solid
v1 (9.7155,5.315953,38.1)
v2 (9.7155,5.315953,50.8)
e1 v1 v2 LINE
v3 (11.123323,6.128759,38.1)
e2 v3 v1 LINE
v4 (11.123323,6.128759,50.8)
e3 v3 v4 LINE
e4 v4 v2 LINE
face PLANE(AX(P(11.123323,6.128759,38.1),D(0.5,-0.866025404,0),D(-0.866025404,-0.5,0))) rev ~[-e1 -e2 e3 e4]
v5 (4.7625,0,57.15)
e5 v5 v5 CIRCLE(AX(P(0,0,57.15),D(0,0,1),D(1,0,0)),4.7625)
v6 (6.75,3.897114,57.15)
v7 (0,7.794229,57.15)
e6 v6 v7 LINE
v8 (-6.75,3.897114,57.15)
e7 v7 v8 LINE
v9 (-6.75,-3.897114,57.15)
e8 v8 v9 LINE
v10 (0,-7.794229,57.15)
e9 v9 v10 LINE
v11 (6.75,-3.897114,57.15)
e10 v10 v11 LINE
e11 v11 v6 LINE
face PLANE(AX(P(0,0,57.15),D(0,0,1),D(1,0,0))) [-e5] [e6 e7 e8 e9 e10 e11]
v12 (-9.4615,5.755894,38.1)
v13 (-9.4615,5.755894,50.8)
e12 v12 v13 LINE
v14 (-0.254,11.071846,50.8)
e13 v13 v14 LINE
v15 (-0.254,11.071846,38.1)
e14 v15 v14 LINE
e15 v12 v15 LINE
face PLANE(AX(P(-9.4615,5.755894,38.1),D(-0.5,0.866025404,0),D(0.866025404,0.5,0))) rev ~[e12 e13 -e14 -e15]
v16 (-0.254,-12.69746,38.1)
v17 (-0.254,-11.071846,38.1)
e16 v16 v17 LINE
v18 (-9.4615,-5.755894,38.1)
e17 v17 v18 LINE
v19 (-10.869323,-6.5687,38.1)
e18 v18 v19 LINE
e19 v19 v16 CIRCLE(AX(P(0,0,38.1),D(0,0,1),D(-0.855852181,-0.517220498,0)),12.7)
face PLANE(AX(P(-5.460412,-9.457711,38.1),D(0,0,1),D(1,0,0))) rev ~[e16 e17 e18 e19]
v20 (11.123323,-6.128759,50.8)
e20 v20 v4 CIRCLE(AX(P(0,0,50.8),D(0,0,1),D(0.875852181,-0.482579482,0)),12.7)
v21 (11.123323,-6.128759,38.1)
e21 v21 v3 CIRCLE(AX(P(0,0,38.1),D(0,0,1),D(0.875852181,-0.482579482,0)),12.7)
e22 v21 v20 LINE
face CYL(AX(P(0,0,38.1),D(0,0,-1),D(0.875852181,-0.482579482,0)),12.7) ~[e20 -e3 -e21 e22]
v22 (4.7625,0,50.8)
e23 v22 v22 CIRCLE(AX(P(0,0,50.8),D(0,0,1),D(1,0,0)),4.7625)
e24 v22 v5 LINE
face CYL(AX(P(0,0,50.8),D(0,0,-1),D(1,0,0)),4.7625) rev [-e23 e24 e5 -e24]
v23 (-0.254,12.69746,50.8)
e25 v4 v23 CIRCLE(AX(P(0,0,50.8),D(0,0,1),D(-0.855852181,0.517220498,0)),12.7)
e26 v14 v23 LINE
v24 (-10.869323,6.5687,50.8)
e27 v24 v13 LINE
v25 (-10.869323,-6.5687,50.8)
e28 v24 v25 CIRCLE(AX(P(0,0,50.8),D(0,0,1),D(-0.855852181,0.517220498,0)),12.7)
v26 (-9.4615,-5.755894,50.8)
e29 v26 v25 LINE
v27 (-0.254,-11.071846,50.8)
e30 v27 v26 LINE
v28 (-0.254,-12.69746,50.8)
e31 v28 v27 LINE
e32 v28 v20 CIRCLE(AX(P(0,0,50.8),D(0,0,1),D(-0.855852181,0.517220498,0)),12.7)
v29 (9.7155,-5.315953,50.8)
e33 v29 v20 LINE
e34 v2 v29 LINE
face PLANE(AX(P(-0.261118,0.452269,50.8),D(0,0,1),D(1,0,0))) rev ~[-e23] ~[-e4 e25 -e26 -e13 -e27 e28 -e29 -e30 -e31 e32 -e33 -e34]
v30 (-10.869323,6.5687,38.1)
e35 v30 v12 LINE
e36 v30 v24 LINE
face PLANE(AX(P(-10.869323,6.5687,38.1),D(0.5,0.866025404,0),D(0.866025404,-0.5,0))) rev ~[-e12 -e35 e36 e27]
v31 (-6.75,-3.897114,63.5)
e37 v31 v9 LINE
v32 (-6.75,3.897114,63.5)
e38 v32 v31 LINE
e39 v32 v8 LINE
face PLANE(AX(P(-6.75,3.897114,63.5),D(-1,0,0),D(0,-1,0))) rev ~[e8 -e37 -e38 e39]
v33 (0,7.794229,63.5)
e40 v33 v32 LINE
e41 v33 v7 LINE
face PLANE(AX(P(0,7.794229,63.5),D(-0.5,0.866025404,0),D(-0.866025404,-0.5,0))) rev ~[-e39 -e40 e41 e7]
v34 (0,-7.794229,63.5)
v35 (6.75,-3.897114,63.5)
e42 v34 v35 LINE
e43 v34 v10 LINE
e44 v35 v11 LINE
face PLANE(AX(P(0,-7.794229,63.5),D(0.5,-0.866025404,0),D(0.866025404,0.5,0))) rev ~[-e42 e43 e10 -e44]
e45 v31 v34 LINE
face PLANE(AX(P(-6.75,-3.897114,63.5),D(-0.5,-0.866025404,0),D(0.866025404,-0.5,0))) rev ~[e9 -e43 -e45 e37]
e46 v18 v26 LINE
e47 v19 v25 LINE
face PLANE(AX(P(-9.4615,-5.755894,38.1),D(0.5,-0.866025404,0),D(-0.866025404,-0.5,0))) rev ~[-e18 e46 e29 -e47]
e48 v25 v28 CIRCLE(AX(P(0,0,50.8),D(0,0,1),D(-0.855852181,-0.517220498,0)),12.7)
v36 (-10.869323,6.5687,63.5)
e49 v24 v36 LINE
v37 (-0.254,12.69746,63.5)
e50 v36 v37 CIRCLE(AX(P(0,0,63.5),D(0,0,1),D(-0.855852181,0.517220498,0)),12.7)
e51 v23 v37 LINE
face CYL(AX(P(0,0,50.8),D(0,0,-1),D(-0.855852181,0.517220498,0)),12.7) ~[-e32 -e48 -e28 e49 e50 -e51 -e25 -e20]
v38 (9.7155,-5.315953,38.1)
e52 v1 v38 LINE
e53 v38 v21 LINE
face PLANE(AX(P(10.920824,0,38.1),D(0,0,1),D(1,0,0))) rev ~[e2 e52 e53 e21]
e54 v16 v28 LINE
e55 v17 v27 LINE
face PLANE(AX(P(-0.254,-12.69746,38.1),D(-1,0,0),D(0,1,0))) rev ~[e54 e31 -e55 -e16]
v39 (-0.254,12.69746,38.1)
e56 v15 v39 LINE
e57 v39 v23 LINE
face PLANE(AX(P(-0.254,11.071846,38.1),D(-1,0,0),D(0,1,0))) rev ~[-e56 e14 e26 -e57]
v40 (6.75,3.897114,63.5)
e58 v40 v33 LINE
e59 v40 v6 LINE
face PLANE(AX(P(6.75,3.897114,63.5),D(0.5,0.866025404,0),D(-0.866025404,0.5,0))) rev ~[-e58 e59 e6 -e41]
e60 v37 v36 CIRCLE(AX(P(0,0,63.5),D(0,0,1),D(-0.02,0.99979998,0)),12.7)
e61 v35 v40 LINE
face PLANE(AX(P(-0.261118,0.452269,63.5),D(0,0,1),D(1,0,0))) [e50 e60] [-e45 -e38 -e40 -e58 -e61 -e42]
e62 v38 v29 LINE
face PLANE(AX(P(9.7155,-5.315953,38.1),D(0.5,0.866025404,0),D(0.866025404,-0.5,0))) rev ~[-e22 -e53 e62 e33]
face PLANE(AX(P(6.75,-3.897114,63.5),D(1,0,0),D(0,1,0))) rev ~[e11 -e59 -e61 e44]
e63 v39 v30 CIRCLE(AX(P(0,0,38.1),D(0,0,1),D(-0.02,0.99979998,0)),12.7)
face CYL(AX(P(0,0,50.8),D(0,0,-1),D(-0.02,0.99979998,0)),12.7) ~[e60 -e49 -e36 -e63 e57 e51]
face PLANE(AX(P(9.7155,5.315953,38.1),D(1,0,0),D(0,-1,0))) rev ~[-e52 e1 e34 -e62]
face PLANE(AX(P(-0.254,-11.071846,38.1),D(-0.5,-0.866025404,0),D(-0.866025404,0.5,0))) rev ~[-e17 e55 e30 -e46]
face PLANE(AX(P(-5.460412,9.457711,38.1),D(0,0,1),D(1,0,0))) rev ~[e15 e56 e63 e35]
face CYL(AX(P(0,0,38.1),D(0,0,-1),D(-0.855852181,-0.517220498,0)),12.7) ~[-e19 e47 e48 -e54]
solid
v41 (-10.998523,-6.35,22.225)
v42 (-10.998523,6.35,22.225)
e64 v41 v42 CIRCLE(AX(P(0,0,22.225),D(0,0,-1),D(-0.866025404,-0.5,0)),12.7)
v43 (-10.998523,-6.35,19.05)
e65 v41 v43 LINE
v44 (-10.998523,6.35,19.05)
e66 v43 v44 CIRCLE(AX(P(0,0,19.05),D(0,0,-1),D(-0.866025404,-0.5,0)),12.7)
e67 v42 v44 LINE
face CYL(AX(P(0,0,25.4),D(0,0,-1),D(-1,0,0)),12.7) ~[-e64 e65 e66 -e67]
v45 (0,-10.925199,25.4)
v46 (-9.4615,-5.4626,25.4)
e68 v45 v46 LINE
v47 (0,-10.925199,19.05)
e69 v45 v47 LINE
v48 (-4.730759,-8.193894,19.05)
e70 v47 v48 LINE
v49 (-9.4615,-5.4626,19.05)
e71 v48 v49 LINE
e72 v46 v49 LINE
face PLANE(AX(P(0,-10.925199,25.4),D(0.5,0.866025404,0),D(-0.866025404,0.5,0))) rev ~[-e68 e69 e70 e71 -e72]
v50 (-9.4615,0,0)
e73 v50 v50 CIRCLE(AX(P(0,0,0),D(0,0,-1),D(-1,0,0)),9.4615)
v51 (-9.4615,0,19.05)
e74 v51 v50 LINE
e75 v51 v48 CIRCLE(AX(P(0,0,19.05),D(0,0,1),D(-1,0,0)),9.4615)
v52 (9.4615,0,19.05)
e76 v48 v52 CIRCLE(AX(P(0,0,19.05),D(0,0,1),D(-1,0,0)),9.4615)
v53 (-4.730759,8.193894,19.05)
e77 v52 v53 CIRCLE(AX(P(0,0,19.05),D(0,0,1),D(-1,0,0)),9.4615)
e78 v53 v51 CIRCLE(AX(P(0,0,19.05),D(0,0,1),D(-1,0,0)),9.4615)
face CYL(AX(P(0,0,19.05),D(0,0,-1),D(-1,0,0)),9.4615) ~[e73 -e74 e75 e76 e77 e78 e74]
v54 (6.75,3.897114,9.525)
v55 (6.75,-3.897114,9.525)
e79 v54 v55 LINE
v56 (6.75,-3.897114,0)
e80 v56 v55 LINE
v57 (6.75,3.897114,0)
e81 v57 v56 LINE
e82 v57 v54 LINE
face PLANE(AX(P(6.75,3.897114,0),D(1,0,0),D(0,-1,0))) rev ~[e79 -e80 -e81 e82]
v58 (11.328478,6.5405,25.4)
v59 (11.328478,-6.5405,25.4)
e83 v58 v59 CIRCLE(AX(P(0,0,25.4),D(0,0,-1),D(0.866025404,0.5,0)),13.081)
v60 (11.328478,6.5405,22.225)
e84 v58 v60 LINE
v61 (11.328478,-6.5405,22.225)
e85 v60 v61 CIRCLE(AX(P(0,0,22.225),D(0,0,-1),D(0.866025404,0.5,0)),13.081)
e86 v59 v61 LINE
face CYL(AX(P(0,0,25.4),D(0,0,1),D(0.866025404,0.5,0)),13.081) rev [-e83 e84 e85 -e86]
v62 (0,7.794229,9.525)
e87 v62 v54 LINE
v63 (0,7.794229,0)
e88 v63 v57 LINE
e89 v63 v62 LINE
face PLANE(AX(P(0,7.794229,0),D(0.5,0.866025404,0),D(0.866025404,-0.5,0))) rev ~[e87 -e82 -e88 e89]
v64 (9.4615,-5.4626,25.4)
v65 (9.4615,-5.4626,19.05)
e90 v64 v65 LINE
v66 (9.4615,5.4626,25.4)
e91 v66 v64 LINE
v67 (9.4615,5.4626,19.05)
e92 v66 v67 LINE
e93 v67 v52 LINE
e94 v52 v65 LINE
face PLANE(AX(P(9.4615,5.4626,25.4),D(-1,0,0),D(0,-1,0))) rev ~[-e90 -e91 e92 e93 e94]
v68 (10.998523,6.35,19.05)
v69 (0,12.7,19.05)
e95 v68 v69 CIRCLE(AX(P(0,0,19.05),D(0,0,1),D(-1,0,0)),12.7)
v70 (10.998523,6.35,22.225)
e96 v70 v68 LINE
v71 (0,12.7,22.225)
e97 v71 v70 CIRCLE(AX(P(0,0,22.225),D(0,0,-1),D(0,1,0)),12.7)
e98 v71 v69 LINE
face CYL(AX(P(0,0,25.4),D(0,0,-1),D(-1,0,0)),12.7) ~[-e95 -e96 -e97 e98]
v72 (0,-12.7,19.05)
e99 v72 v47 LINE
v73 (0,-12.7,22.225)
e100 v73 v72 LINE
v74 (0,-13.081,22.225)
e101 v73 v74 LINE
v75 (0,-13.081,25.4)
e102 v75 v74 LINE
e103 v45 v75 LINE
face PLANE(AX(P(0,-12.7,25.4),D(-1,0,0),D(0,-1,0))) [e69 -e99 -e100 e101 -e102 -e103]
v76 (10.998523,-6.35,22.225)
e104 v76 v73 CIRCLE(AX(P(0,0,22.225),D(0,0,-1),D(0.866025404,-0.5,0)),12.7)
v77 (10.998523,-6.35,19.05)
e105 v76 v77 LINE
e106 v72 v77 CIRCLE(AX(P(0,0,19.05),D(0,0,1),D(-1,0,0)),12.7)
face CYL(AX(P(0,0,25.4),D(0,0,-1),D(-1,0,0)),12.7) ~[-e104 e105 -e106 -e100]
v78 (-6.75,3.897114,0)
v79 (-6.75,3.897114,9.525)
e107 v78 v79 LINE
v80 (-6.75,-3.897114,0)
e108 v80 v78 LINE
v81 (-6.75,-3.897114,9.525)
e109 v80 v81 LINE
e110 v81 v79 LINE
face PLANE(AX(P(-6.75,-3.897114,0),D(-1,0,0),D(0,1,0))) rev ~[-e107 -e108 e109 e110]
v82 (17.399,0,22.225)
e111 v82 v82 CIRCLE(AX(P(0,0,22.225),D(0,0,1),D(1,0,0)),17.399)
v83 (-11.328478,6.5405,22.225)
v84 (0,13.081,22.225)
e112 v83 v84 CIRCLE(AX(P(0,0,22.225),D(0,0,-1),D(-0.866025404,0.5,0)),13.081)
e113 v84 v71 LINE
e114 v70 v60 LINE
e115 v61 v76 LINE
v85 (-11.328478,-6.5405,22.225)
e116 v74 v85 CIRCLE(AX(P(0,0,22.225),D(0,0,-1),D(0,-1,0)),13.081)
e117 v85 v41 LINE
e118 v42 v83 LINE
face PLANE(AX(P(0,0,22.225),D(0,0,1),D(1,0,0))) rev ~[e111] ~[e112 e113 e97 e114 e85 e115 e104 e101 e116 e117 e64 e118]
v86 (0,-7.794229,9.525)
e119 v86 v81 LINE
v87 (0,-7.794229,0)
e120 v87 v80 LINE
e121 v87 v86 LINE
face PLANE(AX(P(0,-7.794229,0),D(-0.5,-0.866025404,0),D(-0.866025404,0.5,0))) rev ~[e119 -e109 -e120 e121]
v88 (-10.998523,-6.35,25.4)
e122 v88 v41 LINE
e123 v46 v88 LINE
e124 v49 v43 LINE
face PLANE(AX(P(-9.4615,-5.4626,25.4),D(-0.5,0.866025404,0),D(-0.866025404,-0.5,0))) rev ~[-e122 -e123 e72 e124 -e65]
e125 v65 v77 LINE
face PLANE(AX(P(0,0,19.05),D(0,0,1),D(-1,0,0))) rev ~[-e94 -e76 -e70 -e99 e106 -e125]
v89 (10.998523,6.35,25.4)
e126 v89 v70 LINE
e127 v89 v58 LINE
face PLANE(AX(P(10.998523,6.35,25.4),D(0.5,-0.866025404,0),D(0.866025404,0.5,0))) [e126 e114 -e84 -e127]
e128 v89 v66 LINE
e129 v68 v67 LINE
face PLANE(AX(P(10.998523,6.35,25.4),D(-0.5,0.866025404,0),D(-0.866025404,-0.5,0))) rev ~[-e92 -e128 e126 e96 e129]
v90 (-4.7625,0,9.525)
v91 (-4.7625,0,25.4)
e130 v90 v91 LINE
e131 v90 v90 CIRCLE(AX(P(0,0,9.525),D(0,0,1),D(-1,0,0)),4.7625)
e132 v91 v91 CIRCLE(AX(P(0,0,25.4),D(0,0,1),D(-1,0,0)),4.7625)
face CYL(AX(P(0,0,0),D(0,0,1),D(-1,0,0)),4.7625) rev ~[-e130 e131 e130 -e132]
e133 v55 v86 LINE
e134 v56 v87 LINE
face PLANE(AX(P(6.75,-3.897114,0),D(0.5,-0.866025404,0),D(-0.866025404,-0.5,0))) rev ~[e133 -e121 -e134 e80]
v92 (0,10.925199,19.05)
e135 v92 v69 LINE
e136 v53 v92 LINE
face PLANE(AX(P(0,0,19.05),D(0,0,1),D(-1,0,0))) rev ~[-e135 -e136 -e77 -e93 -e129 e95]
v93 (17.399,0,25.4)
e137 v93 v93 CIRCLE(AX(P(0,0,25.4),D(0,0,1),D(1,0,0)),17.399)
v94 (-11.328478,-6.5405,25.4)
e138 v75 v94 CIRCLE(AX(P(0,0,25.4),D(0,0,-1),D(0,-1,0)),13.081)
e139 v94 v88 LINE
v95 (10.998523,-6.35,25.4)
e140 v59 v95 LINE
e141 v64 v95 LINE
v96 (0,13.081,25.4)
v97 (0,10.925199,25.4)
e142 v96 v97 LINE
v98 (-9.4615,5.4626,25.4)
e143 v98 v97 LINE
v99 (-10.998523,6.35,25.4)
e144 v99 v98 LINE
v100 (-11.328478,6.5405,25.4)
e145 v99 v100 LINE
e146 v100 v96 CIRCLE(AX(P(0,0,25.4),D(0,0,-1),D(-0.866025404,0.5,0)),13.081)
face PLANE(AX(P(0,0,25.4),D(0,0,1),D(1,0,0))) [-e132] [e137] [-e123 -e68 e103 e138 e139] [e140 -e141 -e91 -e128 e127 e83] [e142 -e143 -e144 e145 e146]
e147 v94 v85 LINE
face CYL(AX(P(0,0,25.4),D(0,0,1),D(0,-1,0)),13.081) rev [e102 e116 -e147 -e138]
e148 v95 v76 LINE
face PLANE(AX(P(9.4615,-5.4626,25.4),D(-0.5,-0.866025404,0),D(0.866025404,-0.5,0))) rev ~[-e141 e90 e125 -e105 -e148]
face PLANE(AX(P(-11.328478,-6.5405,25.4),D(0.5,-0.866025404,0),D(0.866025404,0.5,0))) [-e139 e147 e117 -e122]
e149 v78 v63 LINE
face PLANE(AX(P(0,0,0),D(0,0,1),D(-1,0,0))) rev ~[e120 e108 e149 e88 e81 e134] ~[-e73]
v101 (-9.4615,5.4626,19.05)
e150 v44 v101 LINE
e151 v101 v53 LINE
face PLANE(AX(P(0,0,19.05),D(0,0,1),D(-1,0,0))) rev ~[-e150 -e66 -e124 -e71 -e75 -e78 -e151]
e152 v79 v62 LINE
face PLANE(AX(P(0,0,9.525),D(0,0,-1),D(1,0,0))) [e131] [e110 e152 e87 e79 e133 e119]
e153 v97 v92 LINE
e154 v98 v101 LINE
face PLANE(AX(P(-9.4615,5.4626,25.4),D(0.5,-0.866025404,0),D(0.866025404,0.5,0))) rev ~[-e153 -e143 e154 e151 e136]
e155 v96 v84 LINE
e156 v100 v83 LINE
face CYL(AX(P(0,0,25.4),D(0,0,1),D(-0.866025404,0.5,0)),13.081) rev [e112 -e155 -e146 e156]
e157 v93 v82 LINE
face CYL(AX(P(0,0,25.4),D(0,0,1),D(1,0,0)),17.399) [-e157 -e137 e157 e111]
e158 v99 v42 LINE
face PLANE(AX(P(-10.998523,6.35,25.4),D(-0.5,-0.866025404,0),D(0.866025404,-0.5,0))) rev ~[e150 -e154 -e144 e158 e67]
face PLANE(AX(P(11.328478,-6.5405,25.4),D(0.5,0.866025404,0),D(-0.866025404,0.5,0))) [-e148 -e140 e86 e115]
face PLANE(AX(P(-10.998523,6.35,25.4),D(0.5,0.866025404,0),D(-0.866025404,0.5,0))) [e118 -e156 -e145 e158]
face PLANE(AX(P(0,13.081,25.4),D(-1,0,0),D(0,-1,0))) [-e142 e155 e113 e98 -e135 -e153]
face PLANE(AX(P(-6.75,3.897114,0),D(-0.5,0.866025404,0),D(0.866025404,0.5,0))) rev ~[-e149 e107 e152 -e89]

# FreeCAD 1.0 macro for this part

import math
import FreeCAD as App
import Part
import Sketcher
Q = App.Units.Quantity

doc = App.newDocument("Part")
body = doc.addObject("PartDesign::Body", "Body")

sketch1 = doc.addObject("Sketcher::SketchObject", "Sketch")
body.addObject(sketch1)
sketch1.AttachmentSupport = (doc.XZ_Plane, [""])
sketch1.MapMode = "FlatFace"
sketch1.addGeometry(Part.LineSegment(App.Vector(-9.4615, 0, 0), App.Vector(-4.7625, 0, 0)), False)
sketch1.addGeometry(Part.LineSegment(App.Vector(-4.7625, 0, 0), App.Vector(-4.7625, 25.4, 0)), False)
sketch1.addGeometry(Part.LineSegment(App.Vector(-4.7625, 25.4, 0), App.Vector(-12.7, 25.4, 0)), False)
sketch1.addGeometry(Part.LineSegment(App.Vector(-12.7, 25.4, 0), App.Vector(-12.7, 19.05, 0)), False)
sketch1.addGeometry(Part.LineSegment(App.Vector(-12.7, 19.05, 0), App.Vector(-9.4615, 19.05, 0)), False)
sketch1.addGeometry(Part.LineSegment(App.Vector(-9.4615, 19.05, 0), App.Vector(-9.4615, 0, 0)), False)
sketch1.addConstraint(Sketcher.Constraint("Coincident", 0, 2, 1, 1))
sketch1.addConstraint(Sketcher.Constraint("Coincident", 1, 2, 2, 1))
sketch1.addConstraint(Sketcher.Constraint("Coincident", 2, 2, 3, 1))
sketch1.addConstraint(Sketcher.Constraint("Coincident", 3, 2, 4, 1))
sketch1.addConstraint(Sketcher.Constraint("Coincident", 4, 2, 5, 1))
sketch1.addConstraint(Sketcher.Constraint("Coincident", 5, 2, 0, 1))
sketch1.addConstraint(Sketcher.Constraint("Horizontal", 0))
sketch1.addConstraint(Sketcher.Constraint("Vertical", 1))
sketch1.addConstraint(Sketcher.Constraint("Horizontal", 2))
sketch1.addConstraint(Sketcher.Constraint("Vertical", 3))
sketch1.addConstraint(Sketcher.Constraint("Horizontal", 4))
sketch1.addConstraint(Sketcher.Constraint("Vertical", 5))
sketch1.addConstraint(Sketcher.Constraint("PointOnObject", 0, 2, -1))
sketch1.addConstraint(Sketcher.Constraint("DistanceY", 1, 1, 1, 2, Q("1 in")))
sketch1.addConstraint(Sketcher.Constraint("DistanceY", 3, 2, 3, 1, Q("0.25 in")))
sketch1.addConstraint(Sketcher.Constraint("DistanceX", 2, 2, -1, 1, Q("0.5 in")))
sketch1.addConstraint(Sketcher.Constraint("DistanceX", 0, 1, 0, 2, Q("0.185 in")))
sketch1.addConstraint(Sketcher.Constraint("DistanceX", 2, 2, 2, 1, Q("0.3125 in")))
revolution = doc.addObject("PartDesign::Revolution", "Revolution")
body.addObject(revolution)
revolution.Profile = sketch1
revolution.ReferenceAxis = (sketch1, ["V_Axis"])
revolution.Angle = 360

sketch2 = doc.addObject("Sketcher::SketchObject", "Sketch001")
body.addObject(sketch2)
sketch2.AttachmentSupport = (doc.XY_Plane, [""])
sketch2.MapMode = "FlatFace"
sketch2.addGeometry(Part.LineSegment(App.Vector(6.75, 3.897114, 0), App.Vector(6.75, -3.897114, 0)), False)
sketch2.addGeometry(Part.LineSegment(App.Vector(6.75, -3.897114, 0), App.Vector(0, -7.794229, 0)), False)
sketch2.addGeometry(Part.LineSegment(App.Vector(0, -7.794229, 0), App.Vector(-6.75, -3.897114, 0)), False)
sketch2.addGeometry(Part.LineSegment(App.Vector(-6.75, -3.897114, 0), App.Vector(-6.75, 3.897114, 0)), False)
sketch2.addGeometry(Part.LineSegment(App.Vector(-6.75, 3.897114, 0), App.Vector(0, 7.794229, 0)), False)
sketch2.addGeometry(Part.LineSegment(App.Vector(0, 7.794229, 0), App.Vector(6.75, 3.897114, 0)), False)
sketch2.addGeometry(Part.Circle(App.Vector(0, 0, 0), App.Vector(0, 0, 1), 4.7625), False)
sketch2.addConstraint(Sketcher.Constraint("Coincident", 0, 2, 1, 1))
sketch2.addConstraint(Sketcher.Constraint("Coincident", 1, 2, 2, 1))
sketch2.addConstraint(Sketcher.Constraint("Coincident", 2, 2, 3, 1))
sketch2.addConstraint(Sketcher.Constraint("Coincident", 3, 2, 4, 1))
sketch2.addConstraint(Sketcher.Constraint("Coincident", 4, 2, 5, 1))
sketch2.addConstraint(Sketcher.Constraint("Coincident", 5, 2, 0, 1))
sketch2.addConstraint(Sketcher.Constraint("Vertical", 0))
sketch2.addConstraint(Sketcher.Constraint("Vertical", 3))
sketch2.addConstraint(Sketcher.Constraint("Coincident", 6, 3, -1, 1))
sketch2.addConstraint(Sketcher.Constraint("Symmetric", 0, 2, 3, 2, -1, 1))
sketch2.addConstraint(Sketcher.Constraint("Symmetric", 1, 2, 4, 2, -1, 1))
sketch2.addConstraint(Sketcher.Constraint("PointOnObject", 1, 2, -2))
sketch2.addConstraint(Sketcher.Constraint("Parallel", 2, 5))
sketch2.addConstraint(Sketcher.Constraint("Horizontal", 0, 2, 2, 2))
sketch2.addConstraint(Sketcher.Constraint("Diameter", 6, Q("0.375 in")))
sketch2.addConstraint(Sketcher.Constraint("Angle", 1, Q("-150 deg")))
sketch2.addConstraint(Sketcher.Constraint("DistanceY", 0, 2, 0, 1, 7.794229))
sketch2.addConstraint(Sketcher.Constraint("DistanceX", -1, 1, 0, 2, 6.75))
pocket1 = doc.addObject("PartDesign::Pocket", "Pocket")
body.addObject(pocket1)
pocket1.Profile = sketch2
pocket1.Length = Q("0.375 in")
pocket1.Reversed = True

sketch3 = doc.addObject("Sketcher::SketchObject", "Sketch002")
body.addObject(sketch3)
sketch3.AttachmentSupport = (doc.XY_Plane, [""])
sketch3.MapMode = "FlatFace"
sketch3.AttachmentOffset = App.Placement(App.Vector(0, 0, 1 * 25.4), App.Rotation())
sketch3.addGeometry(Part.LineSegment(App.Vector(0, 10.925199, 0), App.Vector(0, 12.7, 0)), False)
sketch3.addGeometry(Part.ArcOfCircle(Part.Circle(App.Vector(0, 0, 0), App.Vector(0, 0, 1), 12.7), math.radians(90), math.radians(150)), False)
sketch3.addGeometry(Part.LineSegment(App.Vector(-10.998523, 6.35, 0), App.Vector(-9.4615, 5.4626, 0)), False)
sketch3.addGeometry(Part.LineSegment(App.Vector(-9.4615, 5.4626, 0), App.Vector(0, 10.925199, 0)), False)
sketch3.addGeometry(Part.LineSegment(App.Vector(-9.4615, -5.4626, 0), App.Vector(-10.998523, -6.35, 0)), False)
sketch3.addGeometry(Part.ArcOfCircle(Part.Circle(App.Vector(0, 0, 0), App.Vector(0, 0, 1), 12.7), math.radians(-150), math.radians(-90)), False)
sketch3.addGeometry(Part.LineSegment(App.Vector(0, -12.7, 0), App.Vector(0, -10.925199, 0)), False)
sketch3.addGeometry(Part.LineSegment(App.Vector(0, -10.925199, 0), App.Vector(-9.4615, -5.4626, 0)), False)
sketch3.addGeometry(Part.ArcOfCircle(Part.Circle(App.Vector(0, 0, 0), App.Vector(0, 0, 1), 12.7), math.radians(0), math.radians(30)), False)
sketch3.addGeometry(Part.LineSegment(App.Vector(10.998523, 6.35, 0), App.Vector(9.4615, 5.4626, 0)), False)
sketch3.addGeometry(Part.LineSegment(App.Vector(9.4615, 5.4626, 0), App.Vector(9.4615, -5.4626, 0)), False)
sketch3.addGeometry(Part.LineSegment(App.Vector(9.4615, -5.4626, 0), App.Vector(10.998523, -6.35, 0)), False)
sketch3.addGeometry(Part.ArcOfCircle(Part.Circle(App.Vector(0, 0, 0), App.Vector(0, 0, 1), 12.7), math.radians(-30), math.radians(0)), False)
sketch3.addConstraint(Sketcher.Constraint("Coincident", 0, 2, 1, 1))
sketch3.addConstraint(Sketcher.Constraint("Coincident", 1, 2, 2, 1))
sketch3.addConstraint(Sketcher.Constraint("Coincident", 2, 2, 3, 1))
sketch3.addConstraint(Sketcher.Constraint("Coincident", 3, 2, 0, 1))
sketch3.addConstraint(Sketcher.Constraint("Coincident", 4, 2, 5, 1))
sketch3.addConstraint(Sketcher.Constraint("Coincident", 5, 2, 6, 1))
sketch3.addConstraint(Sketcher.Constraint("Coincident", 6, 2, 7, 1))
sketch3.addConstraint(Sketcher.Constraint("Coincident", 7, 2, 4, 1))
sketch3.addConstraint(Sketcher.Constraint("Coincident", 8, 2, 9, 1))
sketch3.addConstraint(Sketcher.Constraint("Coincident", 9, 2, 10, 1))
sketch3.addConstraint(Sketcher.Constraint("Coincident", 10, 2, 11, 1))
sketch3.addConstraint(Sketcher.Constraint("Coincident", 11, 2, 12, 1))
sketch3.addConstraint(Sketcher.Constraint("Tangent", 12, 2, 8, 1))
sketch3.addConstraint(Sketcher.Constraint("Vertical", 0))
sketch3.addConstraint(Sketcher.Constraint("Vertical", 6))
sketch3.addConstraint(Sketcher.Constraint("Vertical", 10))
sketch3.addConstraint(Sketcher.Constraint("Coincident", 1, 3, -1, 1))
sketch3.addConstraint(Sketcher.Constraint("Coincident", 5, 3, -1, 1))
sketch3.addConstraint(Sketcher.Constraint("Coincident", 8, 3, -1, 1))
sketch3.addConstraint(Sketcher.Constraint("Equal", 1, 5))
sketch3.addConstraint(Sketcher.Constraint("Equal", 5, 8))
sketch3.addConstraint(Sketcher.Constraint("Equal", 8, 12))
sketch3.addConstraint(Sketcher.Constraint("Symmetric", 3, 2, 6, 2, -1, 1))
sketch3.addConstraint(Sketcher.Constraint("Symmetric", 7, 2, 9, 2, -1, 1))
sketch3.addConstraint(Sketcher.Constraint("Symmetric", 2, 2, 10, 2, -1, 1))
sketch3.addConstraint(Sketcher.Constraint("PointOnObject", 0, 2, -2))
sketch3.addConstraint(Sketcher.Constraint("PointOnObject", 12, 2, -1))
sketch3.addConstraint(Sketcher.Constraint("Parallel", 3, 4))
sketch3.addConstraint(Sketcher.Constraint("Parallel", 2, 7))
sketch3.addConstraint(Sketcher.Constraint("Parallel", 4, 9))
sketch3.addConstraint(Sketcher.Constraint("Parallel", 7, 11))
sketch3.addConstraint(Sketcher.Constraint("Horizontal", 1, 2, 8, 2))
sketch3.addConstraint(Sketcher.Constraint("Radius", 1, Q("0.5 in")))
sketch3.addConstraint(Sketcher.Constraint("Angle", 2, Q("-30 deg")))
sketch3.addConstraint(Sketcher.Constraint("DistanceY", -1, 1, 1, 2, Q("0.25 in")))
sketch3.addConstraint(Sketcher.Constraint("DistanceY", 0, 1, 0, 2, 1.774801))
pocket2 = doc.addObject("PartDesign::Pocket", "Pocket001")
body.addObject(pocket2)
pocket2.Profile = sketch3
pocket2.Length = Q("1 in")

sketch4 = doc.addObject("Sketcher::SketchObject", "Sketch003")
body.addObject(sketch4)
sketch4.AttachmentSupport = (doc.XY_Plane, [""])
sketch4.MapMode = "FlatFace"
sketch4.AttachmentOffset = App.Placement(App.Vector(0, 0, 1 * 25.4), App.Rotation())
sketch4.addGeometry(Part.Circle(App.Vector(0, 0, 0), App.Vector(0, 0, 1), 17.399), False)
sketch4.addGeometry(Part.LineSegment(App.Vector(10.998523, 6.35, 0), App.Vector(11.328478, 6.5405, 0)), False)
sketch4.addGeometry(Part.ArcOfCircle(Part.Circle(App.Vector(0, 0, 0), App.Vector(0, 0, 1), 13.081), math.radians(-30), math.radians(30)), False)
sketch4.addGeometry(Part.LineSegment(App.Vector(11.328478, -6.5405, 0), App.Vector(10.998523, -6.35, 0)), False)
sketch4.addGeometry(Part.ArcOfCircle(Part.Circle(App.Vector(0, 0, 0), App.Vector(0, 0, 1), 12.7), math.radians(-90), math.radians(-30)), False)
sketch4.addGeometry(Part.LineSegment(App.Vector(0, -12.7, 0), App.Vector(0, -13.081, 0)), False)
sketch4.addGeometry(Part.ArcOfCircle(Part.Circle(App.Vector(0, 0, 0), App.Vector(0, 0, 1), 13.081), math.radians(-150), math.radians(-90)), False)
sketch4.addGeometry(Part.LineSegment(App.Vector(-11.328478, -6.5405, 0), App.Vector(-10.998523, -6.35, 0)), False)
sketch4.addGeometry(Part.ArcOfCircle(Part.Circle(App.Vector(0, 0, 0), App.Vector(0, 0, 1), 12.7), math.radians(150), math.radians(210)), False)
sketch4.addGeometry(Part.LineSegment(App.Vector(-10.998523, 6.35, 0), App.Vector(-11.328478, 6.5405, 0)), False)
sketch4.addGeometry(Part.ArcOfCircle(Part.Circle(App.Vector(0, 0, 0), App.Vector(0, 0, 1), 13.081), math.radians(90), math.radians(150)), False)
sketch4.addGeometry(Part.LineSegment(App.Vector(0, 13.081, 0), App.Vector(0, 12.7, 0)), False)
sketch4.addGeometry(Part.ArcOfCircle(Part.Circle(App.Vector(0, 0, 0), App.Vector(0, 0, 1), 12.7), math.radians(30), math.radians(90)), False)
sketch4.addConstraint(Sketcher.Constraint("Coincident", 1, 2, 2, 2))
sketch4.addConstraint(Sketcher.Constraint("Coincident", 2, 1, 3, 1))
sketch4.addConstraint(Sketcher.Constraint("Coincident", 3, 2, 4, 2))
sketch4.addConstraint(Sketcher.Constraint("Coincident", 4, 1, 5, 1))
sketch4.addConstraint(Sketcher.Constraint("Coincident", 5, 2, 6, 2))
sketch4.addConstraint(Sketcher.Constraint("Coincident", 6, 1, 7, 1))
sketch4.addConstraint(Sketcher.Constraint("Coincident", 7, 2, 8, 2))
sketch4.addConstraint(Sketcher.Constraint("Coincident", 8, 1, 9, 1))
sketch4.addConstraint(Sketcher.Constraint("Coincident", 9, 2, 10, 2))
sketch4.addConstraint(Sketcher.Constraint("Coincident", 10, 1, 11, 1))
sketch4.addConstraint(Sketcher.Constraint("Coincident", 11, 2, 12, 2))
sketch4.addConstraint(Sketcher.Constraint("Coincident", 12, 1, 1, 1))
sketch4.addConstraint(Sketcher.Constraint("Vertical", 5))
sketch4.addConstraint(Sketcher.Constraint("Vertical", 11))
sketch4.addConstraint(Sketcher.Constraint("Coincident", 0, 3, -1, 1))
sketch4.addConstraint(Sketcher.Constraint("Coincident", 2, 3, -1, 1))
sketch4.addConstraint(Sketcher.Constraint("Coincident", 4, 3, -1, 1))
sketch4.addConstraint(Sketcher.Constraint("Coincident", 6, 3, -1, 1))
sketch4.addConstraint(Sketcher.Constraint("Coincident", 8, 3, -1, 1))
sketch4.addConstraint(Sketcher.Constraint("Coincident", 10, 3, -1, 1))
sketch4.addConstraint(Sketcher.Constraint("Coincident", 12, 3, -1, 1))
sketch4.addConstraint(Sketcher.Constraint("Equal", 2, 6))
sketch4.addConstraint(Sketcher.Constraint("Equal", 4, 8))
sketch4.addConstraint(Sketcher.Constraint("Equal", 6, 10))
sketch4.addConstraint(Sketcher.Constraint("Equal", 8, 12))
sketch4.addConstraint(Sketcher.Constraint("PointOnObject", 4, 1, -2))
sketch4.addConstraint(Sketcher.Constraint("PointOnObject", 10, 1, -2))
sketch4.addConstraint(Sketcher.Constraint("Parallel", 1, 7))
sketch4.addConstraint(Sketcher.Constraint("Parallel", 3, 9))
sketch4.addConstraint(Sketcher.Constraint("Horizontal", 2, 1, 6, 1))
sketch4.addConstraint(Sketcher.Constraint("Horizontal", 3, 2, 7, 2))
sketch4.addConstraint(Sketcher.Constraint("Horizontal", 1, 2, 9, 2))
sketch4.addConstraint(Sketcher.Constraint("Vertical", 1, 2, 2, 1))
sketch4.addConstraint(Sketcher.Constraint("Radius", 4, Q("0.5 in")))
sketch4.addConstraint(Sketcher.Constraint("Diameter", 0, Q("1.37 in")))
sketch4.addConstraint(Sketcher.Constraint("Angle", 1, Q("30 deg")))
sketch4.addConstraint(Sketcher.Constraint("Radius", 2, Q("0.515 in")))
sketch4.addConstraint(Sketcher.Constraint("DistanceY", 3, 2, -1, 1, Q("0.25 in")))
pad1 = doc.addObject("PartDesign::Pad", "Pad")
body.addObject(pad1)
pad1.Profile = sketch4
pad1.Length = Q("0.125 in")
pad1.Reversed = True
body2 = doc.addObject("PartDesign::Body", "Body001")

sketch5 = doc.addObject("Sketcher::SketchObject", "Sketch004")
body2.addObject(sketch5)
sketch5.AttachmentSupport = (doc.getObject("XY_Plane001"), [""])
sketch5.MapMode = "FlatFace"
sketch5.AttachmentOffset = App.Placement(App.Vector(0, 0, 1.5 * 25.4), App.Rotation())
sketch5.addGeometry(Part.LineSegment(App.Vector(-9.4615, 5.755894, 0), App.Vector(-0.254, 11.071846, 0)), False)
sketch5.addGeometry(Part.LineSegment(App.Vector(-0.254, 11.071846, 0), App.Vector(-0.254, 12.69746, 0)), False)
sketch5.addGeometry(Part.ArcOfCircle(Part.Circle(App.Vector(0, 0, 0), App.Vector(0, 0, 1), 12.7), math.radians(91.145992), math.radians(148.854008)), False)
sketch5.addGeometry(Part.LineSegment(App.Vector(-10.869323, 6.5687, 0), App.Vector(-9.4615, 5.755894, 0)), False)
sketch5.addConstraint(Sketcher.Constraint("Coincident", 0, 2, 1, 1))
sketch5.addConstraint(Sketcher.Constraint("Coincident", 1, 2, 2, 1))
sketch5.addConstraint(Sketcher.Constraint("Coincident", 2, 2, 3, 1))
sketch5.addConstraint(Sketcher.Constraint("Coincident", 3, 2, 0, 1))
sketch5.addConstraint(Sketcher.Constraint("Vertical", 1))
sketch5.addConstraint(Sketcher.Constraint("Coincident", 2, 3, -1, 1))
sketch5.addConstraint(Sketcher.Constraint("Radius", 2, Q("0.5 in")))
sketch5.addConstraint(Sketcher.Constraint("Angle", 0, Q("30 deg")))
sketch5.addConstraint(Sketcher.Constraint("Angle", 3, Q("-30 deg")))
sketch5.addConstraint(Sketcher.Constraint("DistanceX", 0, 2, -1, 1, Q("0.01 in")))
sketch5.addConstraint(Sketcher.Constraint("DistanceX", 3, 2, -1, 1, Q("0.3725 in")))
sketch5.addConstraint(Sketcher.Constraint("DistanceY", -1, 1, 2, 2, 6.5687))
pad2 = doc.addObject("PartDesign::Pad", "Pad001")
body2.addObject(pad2)
pad2.Profile = sketch5
pad2.Length = Q("0.5 in")
body3 = doc.addObject("PartDesign::Body", "Body002")

sketch6 = doc.addObject("Sketcher::SketchObject", "Sketch005")
body3.addObject(sketch6)
sketch6.AttachmentSupport = (doc.getObject("XY_Plane002"), [""])
sketch6.MapMode = "FlatFace"
sketch6.AttachmentOffset = App.Placement(App.Vector(0, 0, 1.5 * 25.4), App.Rotation())
sketch6.addGeometry(Part.LineSegment(App.Vector(11.123323, 6.128759, 0), App.Vector(9.7155, 5.315953, 0)), False)
sketch6.addGeometry(Part.LineSegment(App.Vector(9.7155, 5.315953, 0), App.Vector(9.7155, -5.315953, 0)), False)
sketch6.addGeometry(Part.LineSegment(App.Vector(9.7155, -5.315953, 0), App.Vector(11.123323, -6.128759, 0)), False)
sketch6.addGeometry(Part.ArcOfCircle(Part.Circle(App.Vector(0, 0, 0), App.Vector(0, 0, 1), 12.7), math.radians(-28.854008), math.radians(28.854008)), False)
sketch6.addConstraint(Sketcher.Constraint("Coincident", 0, 2, 1, 1))
sketch6.addConstraint(Sketcher.Constraint("Coincident", 1, 2, 2, 1))
sketch6.addConstraint(Sketcher.Constraint("Coincident", 2, 2, 3, 1))
sketch6.addConstraint(Sketcher.Constraint("Coincident", 3, 2, 0, 1))
sketch6.addConstraint(Sketcher.Constraint("Vertical", 1))
sketch6.addConstraint(Sketcher.Constraint("Coincident", 3, 3, -1, 1))
sketch6.addConstraint(Sketcher.Constraint("Vertical", 2, 2, 3, 2))
sketch6.addConstraint(Sketcher.Constraint("Equal", 0, 2))
sketch6.addConstraint(Sketcher.Constraint("Radius", 3, Q("0.5 in")))
sketch6.addConstraint(Sketcher.Constraint("Angle", 0, Q("-150 deg")))
sketch6.addConstraint(Sketcher.Constraint("DistanceX", -1, 1, 0, 2, Q("0.3825 in")))
sketch6.addConstraint(Sketcher.Constraint("DistanceY", 1, 2, 1, 1, 10.631905))
pad3 = doc.addObject("PartDesign::Pad", "Pad002")
body3.addObject(pad3)
pad3.Profile = sketch6
pad3.Length = Q("0.5 in")
body4 = doc.addObject("PartDesign::Body", "Body003")

sketch7 = doc.addObject("Sketcher::SketchObject", "Sketch006")
body4.addObject(sketch7)
sketch7.AttachmentSupport = (doc.getObject("XY_Plane003"), [""])
sketch7.MapMode = "FlatFace"
sketch7.AttachmentOffset = App.Placement(App.Vector(0, 0, 1.5 * 25.4), App.Rotation())
sketch7.addGeometry(Part.LineSegment(App.Vector(-0.254, -12.69746, 0), App.Vector(-0.254, -11.071846, 0)), False)
sketch7.addGeometry(Part.LineSegment(App.Vector(-0.254, -11.071846, 0), App.Vector(-9.4615, -5.755894, 0)), False)
sketch7.addGeometry(Part.LineSegment(App.Vector(-9.4615, -5.755894, 0), App.Vector(-10.869323, -6.5687, 0)), False)
sketch7.addGeometry(Part.ArcOfCircle(Part.Circle(App.Vector(0, 0, 0), App.Vector(0, 0, 1), 12.7), math.radians(-148.854008), math.radians(-91.145992)), False)
sketch7.addConstraint(Sketcher.Constraint("Coincident", 0, 2, 1, 1))
sketch7.addConstraint(Sketcher.Constraint("Coincident", 1, 2, 2, 1))
sketch7.addConstraint(Sketcher.Constraint("Coincident", 2, 2, 3, 1))
sketch7.addConstraint(Sketcher.Constraint("Coincident", 3, 2, 0, 1))
sketch7.addConstraint(Sketcher.Constraint("Vertical", 0))
sketch7.addConstraint(Sketcher.Constraint("Coincident", 3, 3, -1, 1))
sketch7.addConstraint(Sketcher.Constraint("Radius", 3, Q("0.5 in")))
sketch7.addConstraint(Sketcher.Constraint("Angle", 1, Q("150 deg")))
sketch7.addConstraint(Sketcher.Constraint("Angle", 2, Q("-150 deg")))
sketch7.addConstraint(Sketcher.Constraint("DistanceX", 0, 2, -1, 1, Q("0.01 in")))
sketch7.addConstraint(Sketcher.Constraint("DistanceX", 1, 2, -1, 1, Q("0.3725 in")))
sketch7.addConstraint(Sketcher.Constraint("DistanceY", 2, 2, -1, 1, 6.5687))
pad4 = doc.addObject("PartDesign::Pad", "Pad003")
body4.addObject(pad4)
pad4.Profile = sketch7
pad4.Length = Q("0.5 in")
body2.AllowCompound = True
doc.recompute()

boolean = doc.addObject("PartDesign::Boolean", "Boolean")
body2.addObject(boolean)
boolean.Type = "Fuse"
boolean.addObjects([body3])
doc.recompute()

boolean2 = doc.addObject("PartDesign::Boolean", "Boolean001")
body2.addObject(boolean2)
boolean2.Type = "Fuse"
boolean2.addObjects([body4])

sketch8 = doc.addObject("Sketcher::SketchObject", "Sketch007")
body2.addObject(sketch8)
sketch8.AttachmentSupport = (doc.getObject("XY_Plane001"), [""])
sketch8.MapMode = "FlatFace"
sketch8.AttachmentOffset = App.Placement(App.Vector(0, 0, 2 * 25.4), App.Rotation())
sketch8.addGeometry(Part.ArcOfCircle(Part.Circle(App.Vector(0, 0, 0), App.Vector(0, 0, 1), 12.7), math.radians(148.854008), math.radians(451.145992)), False)
sketch8.addGeometry(Part.ArcOfCircle(Part.Circle(App.Vector(0, 0, 0), App.Vector(0, 0, 1), 12.7), math.radians(91.145992), math.radians(148.854008)), False)
sketch8.addGeometry(Part.Circle(App.Vector(0, 0, 0), App.Vector(0, 0, 1), 4.7625), False)
sketch8.addConstraint(Sketcher.Constraint("Tangent", 0, 1, 1, 2))
sketch8.addConstraint(Sketcher.Constraint("Coincident", 1, 1, 0, 2))
sketch8.addConstraint(Sketcher.Constraint("Coincident", 0, 3, -1, 1))
sketch8.addConstraint(Sketcher.Constraint("Coincident", 2, 3, -1, 1))
sketch8.addConstraint(Sketcher.Constraint("Radius", 0, Q("0.5 in")))
sketch8.addConstraint(Sketcher.Constraint("Diameter", 2, Q("0.375 in")))
sketch8.addConstraint(Sketcher.Constraint("DistanceX", 1, 1, -1, 1, Q("0.01 in")))
sketch8.addConstraint(Sketcher.Constraint("DistanceY", -1, 1, 0, 1, 6.5687))
pad5 = doc.addObject("PartDesign::Pad", "Pad004")
body2.addObject(pad5)
pad5.Profile = sketch8
pad5.Length = Q("0.5 in")

sketch9 = doc.addObject("Sketcher::SketchObject", "Sketch008")
body2.addObject(sketch9)
sketch9.AttachmentSupport = (doc.getObject("XY_Plane001"), [""])
sketch9.MapMode = "FlatFace"
sketch9.AttachmentOffset = App.Placement(App.Vector(0, 0, 2.5 * 25.4), App.Rotation())
sketch9.addGeometry(Part.LineSegment(App.Vector(6.75, 3.897114, 0), App.Vector(0, 7.794229, 0)), False)
sketch9.addGeometry(Part.LineSegment(App.Vector(0, 7.794229, 0), App.Vector(-6.75, 3.897114, 0)), False)
sketch9.addGeometry(Part.LineSegment(App.Vector(-6.75, 3.897114, 0), App.Vector(-6.75, -3.897114, 0)), False)
sketch9.addGeometry(Part.LineSegment(App.Vector(-6.75, -3.897114, 0), App.Vector(0, -7.794229, 0)), False)
sketch9.addGeometry(Part.LineSegment(App.Vector(0, -7.794229, 0), App.Vector(6.75, -3.897114, 0)), False)
sketch9.addGeometry(Part.LineSegment(App.Vector(6.75, -3.897114, 0), App.Vector(6.75, 3.897114, 0)), False)
sketch9.addGeometry(Part.Circle(App.Vector(0, 0, 0), App.Vector(0, 0, 1), 4.7625), False)
sketch9.addConstraint(Sketcher.Constraint("Coincident", 0, 2, 1, 1))
sketch9.addConstraint(Sketcher.Constraint("Coincident", 1, 2, 2, 1))
sketch9.addConstraint(Sketcher.Constraint("Coincident", 2, 2, 3, 1))
sketch9.addConstraint(Sketcher.Constraint("Coincident", 3, 2, 4, 1))
sketch9.addConstraint(Sketcher.Constraint("Coincident", 4, 2, 5, 1))
sketch9.addConstraint(Sketcher.Constraint("Coincident", 5, 2, 0, 1))
sketch9.addConstraint(Sketcher.Constraint("Vertical", 2))
sketch9.addConstraint(Sketcher.Constraint("Vertical", 5))
sketch9.addConstraint(Sketcher.Constraint("Coincident", 6, 3, -1, 1))
sketch9.addConstraint(Sketcher.Constraint("Symmetric", 0, 2, 3, 2, -1, 1))
sketch9.addConstraint(Sketcher.Constraint("Symmetric", 1, 2, 4, 2, -1, 1))
sketch9.addConstraint(Sketcher.Constraint("PointOnObject", 0, 2, -2))
sketch9.addConstraint(Sketcher.Constraint("Parallel", 0, 3))
sketch9.addConstraint(Sketcher.Constraint("Horizontal", 2, 2, 4, 2))
sketch9.addConstraint(Sketcher.Constraint("Diameter", 6, Q("0.375 in")))
sketch9.addConstraint(Sketcher.Constraint("Angle", 0, Q("150 deg")))
sketch9.addConstraint(Sketcher.Constraint("DistanceY", 2, 2, 2, 1, 7.794229))
sketch9.addConstraint(Sketcher.Constraint("DistanceX", 1, 2, -1, 1, 6.75))
pocket3 = doc.addObject("PartDesign::Pocket", "Pocket002")
body2.addObject(pocket3)
pocket3.Profile = sketch9
pocket3.Length = Q("0.25 in")

doc.recompute()
